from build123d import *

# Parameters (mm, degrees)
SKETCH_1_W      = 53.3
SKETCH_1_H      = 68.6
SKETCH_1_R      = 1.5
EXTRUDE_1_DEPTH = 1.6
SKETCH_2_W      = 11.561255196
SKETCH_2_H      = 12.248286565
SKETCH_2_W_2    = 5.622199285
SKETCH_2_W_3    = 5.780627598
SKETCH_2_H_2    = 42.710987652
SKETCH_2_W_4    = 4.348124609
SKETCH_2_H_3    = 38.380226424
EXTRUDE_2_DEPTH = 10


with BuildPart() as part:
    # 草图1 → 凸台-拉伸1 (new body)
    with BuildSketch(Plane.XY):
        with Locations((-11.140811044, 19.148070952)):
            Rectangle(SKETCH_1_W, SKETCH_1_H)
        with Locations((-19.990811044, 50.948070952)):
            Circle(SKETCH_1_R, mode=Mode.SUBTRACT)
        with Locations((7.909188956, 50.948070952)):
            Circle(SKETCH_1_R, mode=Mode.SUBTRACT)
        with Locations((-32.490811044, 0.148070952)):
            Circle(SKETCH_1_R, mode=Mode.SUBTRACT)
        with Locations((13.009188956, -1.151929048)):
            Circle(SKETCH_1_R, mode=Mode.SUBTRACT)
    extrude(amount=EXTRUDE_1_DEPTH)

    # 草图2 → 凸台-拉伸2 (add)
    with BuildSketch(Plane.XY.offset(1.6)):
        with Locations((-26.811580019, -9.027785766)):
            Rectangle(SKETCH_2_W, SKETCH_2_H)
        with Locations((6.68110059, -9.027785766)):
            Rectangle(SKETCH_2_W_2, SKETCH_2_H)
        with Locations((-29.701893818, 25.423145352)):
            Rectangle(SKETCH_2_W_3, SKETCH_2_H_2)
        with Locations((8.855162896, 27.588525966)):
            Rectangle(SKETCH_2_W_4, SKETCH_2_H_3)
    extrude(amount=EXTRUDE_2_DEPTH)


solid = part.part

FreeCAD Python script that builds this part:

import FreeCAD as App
import Part
import Sketcher
from FreeCAD import Vector


def add_polygon(sketch, points):
    """Adds a closed chain of lines whose ends are joined by coincident constraints."""
    first, n = sketch.GeometryCount, len(points)
    for a, b in zip(points, points[1:] + points[:1]):
        sketch.addGeometry(Part.LineSegment(App.Vector(*a, 0), App.Vector(*b, 0)), False)
    for i in range(n):
        sketch.addConstraint(Sketcher.Constraint("Coincident", first + i, 2, first + (i + 1) % n, 1))

doc = App.newDocument("Part")
body = doc.addObject("PartDesign::Body", "Body")

# Sketch on XY plane
sketch1 = body.newObject("Sketcher::SketchObject", "Sketch")
sketch1.AttachmentSupport = (doc.getObject("XY_Plane"), [""])
sketch1.MapMode = "FlatFace"
add_polygon(sketch1, [(-37.8, 53.4), (-37.8, -15.2), (15.5, -15.2), (15.5, 53.4)])  # lines 0-3
sketch1.addGeometry(Part.Circle(Vector(-32.5, 0.1, 0), Vector(0, 0, 1), 1.5), False)  # 4
sketch1.addGeometry(Part.Circle(Vector(13, -1.2, 0), Vector(0, 0, 1), 1.5), False)  # 5
sketch1.addGeometry(Part.Circle(Vector(-20, 50.9, 0), Vector(0, 0, 1), 1.5), False)  # 6
sketch1.addGeometry(Part.Circle(Vector(7.9, 50.9, 0), Vector(0, 0, 1), 1.5), False)  # 7
sketch1.addConstraint([
    Sketcher.Constraint("Vertical", 0),
    Sketcher.Constraint("Horizontal", 1),
    Sketcher.Constraint("Vertical", 2),
    Sketcher.Constraint("Horizontal", 3),
    Sketcher.Constraint("Equal", 4, 5),
    Sketcher.Constraint("Equal", 5, 6),
    Sketcher.Constraint("Equal", 6, 7),
    Sketcher.Constraint("Horizontal", 6, 3, 7, 3),
    Sketcher.Constraint("Diameter", 4, 3.0),
    Sketcher.Constraint("DistanceX", 1, 1, 1, 2, 53.3),
    Sketcher.Constraint("DistanceY", 0, 2, 0, 1, 68.6),
    Sketcher.Constraint("DistanceX", 6, 3, 5, 3, 33.0),
    Sketcher.Constraint("DistanceY", 0, 2, 5, 3, 14.0),
    Sketcher.Constraint("DistanceX", 4, 3, 1, 2, 48.0),
    Sketcher.Constraint("DistanceX", 4, 3, 5, 3, 45.5),
    Sketcher.Constraint("DistanceY", 5, 3, 4, 3, 1.3),
    Sketcher.Constraint("DistanceY", 4, 3, 6, 3, 50.8),
    Sketcher.Constraint("DistanceX", 6, 3, 7, 3, 27.9),
    Sketcher.Constraint("DistanceX", 4, 3, -1, 1, 32.490811),
    Sketcher.Constraint("DistanceY", -1, 1, 4, 3, 0.148071),
])
pad1 = body.newObject("PartDesign::Pad", "Pad")
pad1.Profile = sketch1
pad1.Length = 1.6

# Sketch on XY plane
sketch2 = body.newObject("Sketcher::SketchObject", "Sketch001")
sketch2.AttachmentSupport = (doc.getObject("XY_Plane"), [""])
sketch2.MapMode = "FlatFace"
sketch2.AttachmentOffset = App.Placement(Vector(0, 0, 1.6), App.Rotation())
add_polygon(sketch2, [(-32.6, -2.9), (-32.6, -15.2), (-21, -15.2), (-21, -2.9)])  # lines 0-3
add_polygon(sketch2, [(3.9, -2.9), (3.9, -15.2), (9.5, -15.2), (9.5, -2.9)])  # lines 4-7
add_polygon(sketch2, [(-32.6, 46.8), (-32.6, 4.1), (-26.8, 4.1), (-26.8, 46.8)])  # lines 8-11
add_polygon(sketch2, [(6.7, 46.8), (6.7, 8.4), (11, 8.4), (11, 46.8)])  # lines 12-15
sketch2.addConstraint([
    Sketcher.Constraint("Vertical", 0),
    Sketcher.Constraint("Horizontal", 1),
    Sketcher.Constraint("Vertical", 2),
    Sketcher.Constraint("Horizontal", 3),
    Sketcher.Constraint("Vertical", 4),
    Sketcher.Constraint("Horizontal", 5),
    Sketcher.Constraint("Vertical", 6),
    Sketcher.Constraint("Horizontal", 7),
    Sketcher.Constraint("Vertical", 8),
    Sketcher.Constraint("Horizontal", 9),
    Sketcher.Constraint("Vertical", 10),
    Sketcher.Constraint("Horizontal", 11),
    Sketcher.Constraint("Vertical", 12),
    Sketcher.Constraint("Horizontal", 13),
    Sketcher.Constraint("Vertical", 14),
    Sketcher.Constraint("Horizontal", 15),
    Sketcher.Constraint("Horizontal", 1, 2, 4, 2),
    Sketcher.Constraint("Horizontal", 3, 2, 6, 2),
    Sketcher.Constraint("Horizontal", 11, 2, 14, 2),
    Sketcher.Constraint("Vertical", 3, 2, 8, 2),
    Sketcher.Constraint("DistanceX", -1, 1, 4, 2, 3.870001),
    Sketcher.Constraint("DistanceX", 5, 1, 5, 2, 5.622199),
    Sketcher.Constraint("DistanceX", -1, 1, 12, 2, 6.681101),
    Sketcher.Constraint("DistanceX", 1, 1, 1, 2, 11.561255),
    Sketcher.Constraint("DistanceX", 9, 1, 9, 2, 5.780628),
    Sketcher.Constraint("DistanceX", 13, 1, 13, 2, 4.348125),
    Sketcher.Constraint("DistanceY", 0, 2, 0, 1, 12.248287),
    Sketcher.Constraint("DistanceY", 8, 2, 8, 1, 42.710988),
    Sketcher.Constraint("DistanceY", 12, 2, 12, 1, 38.380226),
    Sketcher.Constraint("DistanceY", 0, 2, -1, 1, 15.151929),
    Sketcher.Constraint("DistanceY", -1, 1, 8, 2, 4.067652),
    Sketcher.Constraint("DistanceX", 9, 2, -1, 1, 26.81158),
])
pad2 = body.newObject("PartDesign::Pad", "Pad001")
pad2.Profile = sketch2
pad2.Length = 10

doc.recompute()
